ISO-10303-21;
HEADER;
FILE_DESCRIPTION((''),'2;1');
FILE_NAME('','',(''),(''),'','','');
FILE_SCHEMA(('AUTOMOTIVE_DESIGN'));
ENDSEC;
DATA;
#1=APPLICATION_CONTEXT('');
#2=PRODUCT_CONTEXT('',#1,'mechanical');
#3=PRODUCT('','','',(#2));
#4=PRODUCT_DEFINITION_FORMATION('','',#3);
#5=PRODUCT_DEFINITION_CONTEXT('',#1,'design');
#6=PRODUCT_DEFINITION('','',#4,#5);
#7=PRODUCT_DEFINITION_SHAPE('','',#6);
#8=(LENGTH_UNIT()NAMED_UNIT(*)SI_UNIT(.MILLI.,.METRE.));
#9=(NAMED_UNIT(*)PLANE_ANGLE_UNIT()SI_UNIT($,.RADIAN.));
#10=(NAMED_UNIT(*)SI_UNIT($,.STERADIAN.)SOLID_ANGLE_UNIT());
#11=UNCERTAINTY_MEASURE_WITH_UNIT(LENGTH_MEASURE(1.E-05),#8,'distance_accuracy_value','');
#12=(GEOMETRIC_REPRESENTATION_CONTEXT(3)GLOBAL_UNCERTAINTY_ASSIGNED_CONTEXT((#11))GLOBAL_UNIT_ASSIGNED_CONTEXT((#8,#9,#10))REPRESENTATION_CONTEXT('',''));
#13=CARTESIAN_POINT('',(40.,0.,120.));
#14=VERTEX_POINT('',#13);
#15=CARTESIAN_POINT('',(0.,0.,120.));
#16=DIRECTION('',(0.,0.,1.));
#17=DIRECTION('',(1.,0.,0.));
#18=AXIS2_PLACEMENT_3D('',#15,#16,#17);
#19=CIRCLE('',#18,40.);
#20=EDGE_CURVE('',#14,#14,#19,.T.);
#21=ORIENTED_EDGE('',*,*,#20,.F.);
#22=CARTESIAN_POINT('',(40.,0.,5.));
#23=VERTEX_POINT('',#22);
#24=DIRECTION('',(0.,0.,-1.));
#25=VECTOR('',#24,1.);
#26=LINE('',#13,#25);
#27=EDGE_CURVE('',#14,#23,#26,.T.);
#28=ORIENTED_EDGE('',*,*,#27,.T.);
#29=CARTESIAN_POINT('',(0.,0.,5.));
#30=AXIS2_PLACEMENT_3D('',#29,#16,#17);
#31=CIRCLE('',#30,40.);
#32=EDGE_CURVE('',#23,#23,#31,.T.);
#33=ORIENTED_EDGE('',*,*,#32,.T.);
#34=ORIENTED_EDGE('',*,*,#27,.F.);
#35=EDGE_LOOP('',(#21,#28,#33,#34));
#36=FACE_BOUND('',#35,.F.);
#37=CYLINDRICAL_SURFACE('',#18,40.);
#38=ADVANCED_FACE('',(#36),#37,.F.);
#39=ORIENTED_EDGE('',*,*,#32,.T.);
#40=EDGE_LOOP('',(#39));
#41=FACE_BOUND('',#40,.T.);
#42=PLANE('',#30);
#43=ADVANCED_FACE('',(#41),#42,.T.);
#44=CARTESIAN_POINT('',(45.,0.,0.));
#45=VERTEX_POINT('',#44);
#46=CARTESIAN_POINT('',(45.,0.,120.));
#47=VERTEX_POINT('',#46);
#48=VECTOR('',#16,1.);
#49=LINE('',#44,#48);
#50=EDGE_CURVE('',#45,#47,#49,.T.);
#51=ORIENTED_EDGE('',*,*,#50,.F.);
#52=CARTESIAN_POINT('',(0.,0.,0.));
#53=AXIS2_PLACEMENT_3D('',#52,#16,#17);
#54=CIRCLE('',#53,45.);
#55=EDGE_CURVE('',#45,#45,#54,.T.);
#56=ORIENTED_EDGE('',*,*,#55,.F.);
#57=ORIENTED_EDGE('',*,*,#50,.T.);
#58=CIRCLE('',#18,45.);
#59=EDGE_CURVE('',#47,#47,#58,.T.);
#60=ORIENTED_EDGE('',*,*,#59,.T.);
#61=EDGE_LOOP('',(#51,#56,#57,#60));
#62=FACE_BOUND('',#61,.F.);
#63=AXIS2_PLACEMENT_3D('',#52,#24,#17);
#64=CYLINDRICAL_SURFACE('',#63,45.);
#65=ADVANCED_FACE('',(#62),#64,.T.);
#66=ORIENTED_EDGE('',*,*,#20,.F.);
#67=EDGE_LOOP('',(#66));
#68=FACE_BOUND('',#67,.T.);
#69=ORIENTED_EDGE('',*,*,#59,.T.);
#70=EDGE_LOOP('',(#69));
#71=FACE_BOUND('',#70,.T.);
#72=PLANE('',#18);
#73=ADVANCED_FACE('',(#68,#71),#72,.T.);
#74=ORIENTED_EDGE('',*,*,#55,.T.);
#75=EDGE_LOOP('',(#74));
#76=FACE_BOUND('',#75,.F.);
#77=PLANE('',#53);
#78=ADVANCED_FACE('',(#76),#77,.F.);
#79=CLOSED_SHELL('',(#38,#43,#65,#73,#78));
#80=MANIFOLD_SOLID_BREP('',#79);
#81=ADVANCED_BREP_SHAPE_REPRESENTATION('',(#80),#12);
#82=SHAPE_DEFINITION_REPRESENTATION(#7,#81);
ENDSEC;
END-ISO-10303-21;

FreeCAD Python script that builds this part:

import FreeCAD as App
import Part
import Sketcher

V = App.Vector
Q = App.Units.Quantity

doc = App.newDocument("Part")
body = doc.addObject("PartDesign::Body", "Body")

sketch1 = body.newObject("Sketcher::SketchObject", "Sketch")
sketch1.AttachmentSupport = (doc.getObject("XY_Plane"), [""])
sketch1.MapMode = "FlatFace"
sketch1.addGeometry(Part.Circle(V(0, 0, 0), V(0, 0, 1), 45), False)
sketch1.addConstraint([
    Sketcher.Constraint("Coincident", 0, 3, -1, 1),
    Sketcher.Constraint("Diameter", 0, Q("90 mm")),
])
pad1 = body.newObject("PartDesign::Pad", "Pad")
pad1.Profile = sketch1
pad1.Length = 120

sketch2 = body.newObject("Sketcher::SketchObject", "Sketch001")
sketch2.AttachmentSupport = (doc.getObject("XY_Plane"), [""])
sketch2.MapMode = "FlatFace"
sketch2.AttachmentOffset = App.Placement(V(0, 0, 120), App.Rotation())
sketch2.addGeometry(Part.Circle(V(0, 0, 0), V(0, 0, 1), 40), False)
sketch2.addConstraint([
    Sketcher.Constraint("Coincident", 0, 3, -1, 1),
    Sketcher.Constraint("Diameter", 0, Q("80 mm")),
])
pocket1 = body.newObject("PartDesign::Pocket", "Pocket")
pocket1.Profile = sketch2
pocket1.Length = 115

doc.recompute()
